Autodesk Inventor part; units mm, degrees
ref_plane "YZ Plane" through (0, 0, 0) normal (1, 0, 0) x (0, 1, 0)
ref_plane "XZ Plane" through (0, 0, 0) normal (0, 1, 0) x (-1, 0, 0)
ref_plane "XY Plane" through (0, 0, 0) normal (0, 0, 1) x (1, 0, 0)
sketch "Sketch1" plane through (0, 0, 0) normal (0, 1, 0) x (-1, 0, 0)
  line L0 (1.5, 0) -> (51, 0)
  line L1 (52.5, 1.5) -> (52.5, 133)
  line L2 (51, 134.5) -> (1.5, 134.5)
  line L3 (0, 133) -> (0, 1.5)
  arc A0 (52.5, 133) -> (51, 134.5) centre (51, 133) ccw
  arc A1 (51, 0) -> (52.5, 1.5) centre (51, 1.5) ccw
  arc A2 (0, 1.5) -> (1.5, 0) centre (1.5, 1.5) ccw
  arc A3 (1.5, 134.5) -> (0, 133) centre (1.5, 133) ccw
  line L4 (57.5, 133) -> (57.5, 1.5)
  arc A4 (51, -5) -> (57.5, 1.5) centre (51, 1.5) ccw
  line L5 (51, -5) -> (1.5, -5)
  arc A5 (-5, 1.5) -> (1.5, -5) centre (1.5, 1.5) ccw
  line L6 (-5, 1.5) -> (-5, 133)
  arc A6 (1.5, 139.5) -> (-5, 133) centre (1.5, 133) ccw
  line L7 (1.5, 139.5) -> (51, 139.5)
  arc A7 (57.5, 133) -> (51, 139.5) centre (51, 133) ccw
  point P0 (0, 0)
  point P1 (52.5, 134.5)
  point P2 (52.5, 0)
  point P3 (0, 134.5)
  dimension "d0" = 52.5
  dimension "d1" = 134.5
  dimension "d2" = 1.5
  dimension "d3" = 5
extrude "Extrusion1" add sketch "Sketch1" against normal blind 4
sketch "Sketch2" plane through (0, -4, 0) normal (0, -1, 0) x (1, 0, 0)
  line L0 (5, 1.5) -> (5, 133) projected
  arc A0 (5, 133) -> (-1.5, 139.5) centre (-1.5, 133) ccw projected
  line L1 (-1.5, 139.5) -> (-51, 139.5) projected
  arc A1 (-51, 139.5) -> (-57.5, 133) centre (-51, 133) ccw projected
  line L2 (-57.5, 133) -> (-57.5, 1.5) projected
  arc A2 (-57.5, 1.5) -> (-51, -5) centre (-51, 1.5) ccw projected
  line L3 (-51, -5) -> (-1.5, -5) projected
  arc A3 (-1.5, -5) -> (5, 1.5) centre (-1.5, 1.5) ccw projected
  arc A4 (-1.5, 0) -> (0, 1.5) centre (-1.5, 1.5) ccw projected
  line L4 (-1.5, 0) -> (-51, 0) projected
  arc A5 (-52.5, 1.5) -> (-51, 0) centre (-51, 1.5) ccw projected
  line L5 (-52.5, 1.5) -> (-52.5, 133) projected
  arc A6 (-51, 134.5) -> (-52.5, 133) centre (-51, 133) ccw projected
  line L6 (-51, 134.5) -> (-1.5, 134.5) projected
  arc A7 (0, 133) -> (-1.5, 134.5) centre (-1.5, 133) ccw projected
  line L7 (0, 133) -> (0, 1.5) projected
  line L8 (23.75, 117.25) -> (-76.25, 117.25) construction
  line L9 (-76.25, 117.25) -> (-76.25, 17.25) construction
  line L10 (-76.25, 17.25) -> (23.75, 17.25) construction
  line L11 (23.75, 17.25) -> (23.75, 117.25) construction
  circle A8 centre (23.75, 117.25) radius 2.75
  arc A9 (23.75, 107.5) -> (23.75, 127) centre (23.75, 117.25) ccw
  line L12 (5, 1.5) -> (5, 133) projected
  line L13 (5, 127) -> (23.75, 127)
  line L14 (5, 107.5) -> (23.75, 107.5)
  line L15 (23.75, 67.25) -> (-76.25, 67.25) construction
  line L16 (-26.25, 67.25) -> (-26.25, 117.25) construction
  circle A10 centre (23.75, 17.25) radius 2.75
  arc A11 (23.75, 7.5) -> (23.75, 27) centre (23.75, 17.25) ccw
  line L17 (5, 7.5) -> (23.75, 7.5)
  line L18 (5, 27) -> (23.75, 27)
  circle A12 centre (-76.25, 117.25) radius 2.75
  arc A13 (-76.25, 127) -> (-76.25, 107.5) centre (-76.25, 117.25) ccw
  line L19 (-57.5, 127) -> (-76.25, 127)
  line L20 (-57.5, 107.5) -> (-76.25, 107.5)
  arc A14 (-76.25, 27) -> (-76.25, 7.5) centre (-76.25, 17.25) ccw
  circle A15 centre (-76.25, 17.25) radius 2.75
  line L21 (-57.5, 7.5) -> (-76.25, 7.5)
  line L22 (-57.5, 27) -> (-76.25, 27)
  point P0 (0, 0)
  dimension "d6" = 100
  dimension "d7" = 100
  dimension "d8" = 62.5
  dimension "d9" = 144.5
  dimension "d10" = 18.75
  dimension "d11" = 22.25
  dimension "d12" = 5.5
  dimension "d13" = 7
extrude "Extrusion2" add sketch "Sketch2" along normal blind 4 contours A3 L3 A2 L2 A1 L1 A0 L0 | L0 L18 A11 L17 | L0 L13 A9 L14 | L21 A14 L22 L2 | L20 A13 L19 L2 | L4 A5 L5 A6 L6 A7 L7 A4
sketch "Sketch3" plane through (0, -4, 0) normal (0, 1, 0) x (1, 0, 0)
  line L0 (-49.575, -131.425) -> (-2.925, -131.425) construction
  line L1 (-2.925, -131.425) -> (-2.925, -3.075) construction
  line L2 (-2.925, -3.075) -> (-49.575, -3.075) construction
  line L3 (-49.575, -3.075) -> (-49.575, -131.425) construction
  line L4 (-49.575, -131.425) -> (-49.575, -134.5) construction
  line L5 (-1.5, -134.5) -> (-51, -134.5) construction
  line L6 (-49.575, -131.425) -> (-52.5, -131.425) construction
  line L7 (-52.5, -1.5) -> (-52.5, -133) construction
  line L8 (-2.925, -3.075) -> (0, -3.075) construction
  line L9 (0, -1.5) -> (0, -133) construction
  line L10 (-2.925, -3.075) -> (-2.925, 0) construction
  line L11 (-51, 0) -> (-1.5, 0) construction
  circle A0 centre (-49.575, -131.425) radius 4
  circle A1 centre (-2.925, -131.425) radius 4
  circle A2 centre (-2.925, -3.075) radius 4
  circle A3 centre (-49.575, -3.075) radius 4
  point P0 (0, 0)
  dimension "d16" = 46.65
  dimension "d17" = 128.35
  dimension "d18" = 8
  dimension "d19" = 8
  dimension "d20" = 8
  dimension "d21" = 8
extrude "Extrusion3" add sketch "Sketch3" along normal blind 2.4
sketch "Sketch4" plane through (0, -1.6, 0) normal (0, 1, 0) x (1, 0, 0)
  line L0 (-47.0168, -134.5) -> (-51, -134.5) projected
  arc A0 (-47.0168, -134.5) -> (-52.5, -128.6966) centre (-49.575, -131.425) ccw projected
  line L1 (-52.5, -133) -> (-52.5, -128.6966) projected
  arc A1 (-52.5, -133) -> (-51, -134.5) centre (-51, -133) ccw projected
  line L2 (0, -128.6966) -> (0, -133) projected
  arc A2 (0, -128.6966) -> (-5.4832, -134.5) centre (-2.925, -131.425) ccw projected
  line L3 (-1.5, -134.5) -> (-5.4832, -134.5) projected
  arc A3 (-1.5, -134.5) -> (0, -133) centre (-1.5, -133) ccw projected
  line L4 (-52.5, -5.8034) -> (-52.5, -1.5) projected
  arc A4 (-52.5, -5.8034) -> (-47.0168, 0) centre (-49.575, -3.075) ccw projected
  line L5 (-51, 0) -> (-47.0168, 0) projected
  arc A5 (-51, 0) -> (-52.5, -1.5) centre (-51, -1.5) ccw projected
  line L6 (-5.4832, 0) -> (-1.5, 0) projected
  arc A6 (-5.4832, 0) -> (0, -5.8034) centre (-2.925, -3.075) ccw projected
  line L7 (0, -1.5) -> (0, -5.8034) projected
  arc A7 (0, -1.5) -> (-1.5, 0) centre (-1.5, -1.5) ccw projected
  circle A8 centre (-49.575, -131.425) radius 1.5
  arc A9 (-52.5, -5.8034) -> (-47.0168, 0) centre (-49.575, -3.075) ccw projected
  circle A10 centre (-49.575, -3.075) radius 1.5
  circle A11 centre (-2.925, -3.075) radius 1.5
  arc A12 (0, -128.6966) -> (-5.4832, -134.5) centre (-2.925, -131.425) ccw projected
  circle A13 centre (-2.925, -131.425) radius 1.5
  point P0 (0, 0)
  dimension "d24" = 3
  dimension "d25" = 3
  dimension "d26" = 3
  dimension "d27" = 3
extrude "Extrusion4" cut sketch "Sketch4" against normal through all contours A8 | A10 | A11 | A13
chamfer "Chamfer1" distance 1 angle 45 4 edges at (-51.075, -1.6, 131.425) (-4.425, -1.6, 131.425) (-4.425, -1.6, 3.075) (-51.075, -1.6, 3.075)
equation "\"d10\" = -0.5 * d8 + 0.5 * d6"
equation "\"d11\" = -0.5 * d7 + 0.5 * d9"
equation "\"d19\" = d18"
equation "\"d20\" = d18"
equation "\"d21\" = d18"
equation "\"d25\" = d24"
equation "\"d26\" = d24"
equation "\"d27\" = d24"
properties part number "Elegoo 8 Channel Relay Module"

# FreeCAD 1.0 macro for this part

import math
import FreeCAD as App
import Part
import Sketcher
from FreeCAD import Vector
Q = App.Units.Quantity


def edges_at(feature, points):
    """Names of the edges that pass closest to the given points."""
    edges = feature.Shape.Edges
    near = lambda p: min(range(len(edges)), key=lambda i: edges[i].distToShape(Part.Vertex(*p))[0])
    return sorted({f"Edge{near(p) + 1}" for p in points})

doc = App.newDocument("Part")
body = doc.addObject("PartDesign::Body", "Body")

# Sketch on XZ plane
sketch1 = body.newObject("Sketcher::SketchObject", "Sketch")
sketch1.AttachmentSupport = (doc.getObject("XZ_Plane"), [""])
sketch1.MapMode = "FlatFace"
sketch1.addGeometry([
    Part.LineSegment(Vector(-57.5, 1.5, 0), Vector(-57.5, 133, 0)),  # 0
    Part.ArcOfCircle(Part.Circle(Vector(-51, 133, 0), Vector(0, 0, 1), 6.5), math.radians(90), math.radians(180)),  # 1
    Part.LineSegment(Vector(-51, 139.5, 0), Vector(-1.5, 139.5, 0)),  # 2
    Part.ArcOfCircle(Part.Circle(Vector(-1.5, 133, 0), Vector(0, 0, 1), 6.5), math.radians(0), math.radians(90)),  # 3
    Part.LineSegment(Vector(5, 133, 0), Vector(5, 1.5, 0)),  # 4
    Part.ArcOfCircle(Part.Circle(Vector(-1.5, 1.5, 0), Vector(0, 0, 1), 6.5), math.radians(-90), math.radians(0)),  # 5
    Part.LineSegment(Vector(-1.5, -5, 0), Vector(-51, -5, 0)),  # 6
    Part.ArcOfCircle(Part.Circle(Vector(-51, 1.5, 0), Vector(0, 0, 1), 6.5), math.radians(180), math.radians(270)),  # 7
    Part.LineSegment(Vector(-51, 0, 0), Vector(-1.5, 0, 0)),  # 8
    Part.ArcOfCircle(Part.Circle(Vector(-1.5, 1.5, 0), Vector(0, 0, 1), 1.5), math.radians(-90), math.radians(0)),  # 9
    Part.LineSegment(Vector(0, 1.5, 0), Vector(0, 133, 0)),  # 10
    Part.ArcOfCircle(Part.Circle(Vector(-1.5, 133, 0), Vector(0, 0, 1), 1.5), math.radians(0), math.radians(90)),  # 11
    Part.LineSegment(Vector(-1.5, 134.5, 0), Vector(-51, 134.5, 0)),  # 12
    Part.ArcOfCircle(Part.Circle(Vector(-51, 133, 0), Vector(0, 0, 1), 1.5), math.radians(90), math.radians(180)),  # 13
    Part.LineSegment(Vector(-52.5, 133, 0), Vector(-52.5, 1.5, 0)),  # 14
    Part.ArcOfCircle(Part.Circle(Vector(-51, 1.5, 0), Vector(0, 0, 1), 1.5), math.radians(180), math.radians(270)),  # 15
], False)
sketch1.addConstraint([
    Sketcher.Constraint("Tangent", 0, 2, 1, 2),
    Sketcher.Constraint("Tangent", 1, 1, 2, 1),
    Sketcher.Constraint("Tangent", 2, 2, 3, 2),
    Sketcher.Constraint("Tangent", 3, 1, 4, 1),
    Sketcher.Constraint("Tangent", 4, 2, 5, 2),
    Sketcher.Constraint("Tangent", 5, 1, 6, 1),
    Sketcher.Constraint("Tangent", 6, 2, 7, 2),
    Sketcher.Constraint("Tangent", 7, 1, 0, 1),
    Sketcher.Constraint("Tangent", 8, 2, 9, 1),
    Sketcher.Constraint("Tangent", 9, 2, 10, 1),
    Sketcher.Constraint("Tangent", 10, 2, 11, 1),
    Sketcher.Constraint("Tangent", 11, 2, 12, 1),
    Sketcher.Constraint("Tangent", 12, 2, 13, 1),
    Sketcher.Constraint("Tangent", 13, 2, 14, 1),
    Sketcher.Constraint("Tangent", 14, 2, 15, 1),
    Sketcher.Constraint("Tangent", 15, 2, 8, 1),
    Sketcher.Constraint("Vertical", 0),
    Sketcher.Constraint("Horizontal", 2),
    Sketcher.Constraint("Vertical", 4),
    Sketcher.Constraint("Horizontal", 6),
    Sketcher.Constraint("Horizontal", 8),
    Sketcher.Constraint("Vertical", 10),
    Sketcher.Constraint("Horizontal", 12),
    Sketcher.Constraint("Vertical", 14),
    Sketcher.Constraint("Coincident", 9, 3, 5, 3),
    Sketcher.Constraint("Coincident", 11, 3, 3, 3),
    Sketcher.Constraint("Coincident", 13, 3, 1, 3),
    Sketcher.Constraint("Equal", 1, 3),
    Sketcher.Constraint("Equal", 3, 5),
    Sketcher.Constraint("Equal", 5, 7),
    Sketcher.Constraint("Equal", 13, 15),
    Sketcher.Constraint("PointOnObject", 8, 2, -1),
    Sketcher.Constraint("PointOnObject", 9, 2, -2),
    Sketcher.Constraint("Radius", 9, Q("1.5 mm")),
    Sketcher.Constraint("DistanceX", -1, 1, 3, 1, Q("5 mm")),
    Sketcher.Constraint("DistanceY", -1, 1, 11, 2, Q("134.5 mm")),
    Sketcher.Constraint("DistanceX", 13, 2, -1, 1, Q("52.5 mm")),
])
pad1 = body.newObject("PartDesign::Pad", "Pad")
pad1.Profile = sketch1
pad1.Length = 4

# Sketch on XZ plane
sketch2 = body.newObject("Sketcher::SketchObject", "Sketch001")
sketch2.AttachmentSupport = (doc.getObject("XZ_Plane"), [""])
sketch2.MapMode = "FlatFace"
sketch2.AttachmentOffset = App.Placement(Vector(0, 0, 4), App.Rotation())
sketch2.addGeometry([
    Part.ArcOfCircle(Part.Circle(Vector(-1.5, 1.5, 0), Vector(0, 0, 1), 6.5), math.radians(-90), math.radians(0)),  # 0
    Part.LineSegment(Vector(5, 1.5, 0), Vector(5, 7.5, 0)),  # 1
    Part.LineSegment(Vector(5, 7.5, 0), Vector(23.8, 7.5, 0)),  # 2
    Part.ArcOfCircle(Part.Circle(Vector(23.8, 17.2, 0), Vector(0, 0, 1), 9.8), math.radians(-90), math.radians(90)),  # 3
    Part.LineSegment(Vector(23.8, 27, 0), Vector(5, 27, 0)),  # 4
    Part.LineSegment(Vector(5, 27, 0), Vector(5, 107.5, 0)),  # 5
    Part.LineSegment(Vector(5, 107.5, 0), Vector(23.8, 107.5, 0)),  # 6
    Part.ArcOfCircle(Part.Circle(Vector(23.8, 117.2, 0), Vector(0, 0, 1), 9.8), math.radians(-90), math.radians(90)),  # 7
    Part.LineSegment(Vector(23.8, 127, 0), Vector(5, 127, 0)),  # 8
    Part.LineSegment(Vector(5, 127, 0), Vector(5, 133, 0)),  # 9
    Part.ArcOfCircle(Part.Circle(Vector(-1.5, 133, 0), Vector(0, 0, 1), 6.5), math.radians(0), math.radians(90)),  # 10
    Part.LineSegment(Vector(-1.5, 139.5, 0), Vector(-51, 139.5, 0)),  # 11
    Part.ArcOfCircle(Part.Circle(Vector(-51, 133, 0), Vector(0, 0, 1), 6.5), math.radians(90), math.radians(180)),  # 12
    Part.LineSegment(Vector(-57.5, 133, 0), Vector(-57.5, 127, 0)),  # 13
    Part.LineSegment(Vector(-57.5, 127, 0), Vector(-76.2, 127, 0)),  # 14
    Part.ArcOfCircle(Part.Circle(Vector(-76.2, 117.2, 0), Vector(0, 0, 1), 9.8), math.radians(90), math.radians(270)),  # 15
    Part.LineSegment(Vector(-76.2, 107.5, 0), Vector(-57.5, 107.5, 0)),  # 16
    Part.LineSegment(Vector(-57.5, 107.5, 0), Vector(-57.5, 27, 0)),  # 17
    Part.LineSegment(Vector(-57.5, 27, 0), Vector(-76.2, 27, 0)),  # 18
    Part.ArcOfCircle(Part.Circle(Vector(-76.2, 17.2, 0), Vector(0, 0, 1), 9.8), math.radians(90), math.radians(270)),  # 19
    Part.LineSegment(Vector(-76.2, 7.5, 0), Vector(-57.5, 7.5, 0)),  # 20
    Part.LineSegment(Vector(-57.5, 7.5, 0), Vector(-57.5, 1.5, 0)),  # 21
    Part.ArcOfCircle(Part.Circle(Vector(-51, 1.5, 0), Vector(0, 0, 1), 6.5), math.radians(180), math.radians(270)),  # 22
    Part.LineSegment(Vector(-51, -5, 0), Vector(-1.5, -5, 0)),  # 23
    Part.Circle(Vector(-76.2, 17.2, 0), Vector(0, 0, 1), 2.8),  # 24
    Part.Circle(Vector(-76.2, 117.2, 0), Vector(0, 0, 1), 2.8),  # 25
    Part.Circle(Vector(23.8, 117.2, 0), Vector(0, 0, 1), 2.8),  # 26
    Part.Circle(Vector(23.8, 17.2, 0), Vector(0, 0, 1), 2.8),  # 27
], False)
sketch2.addConstraint([
    Sketcher.Constraint("Tangent", 0, 2, 1, 1),
    Sketcher.Constraint("Coincident", 1, 2, 2, 1),
    Sketcher.Constraint("Tangent", 2, 2, 3, 1),
    Sketcher.Constraint("Tangent", 3, 2, 4, 1),
    Sketcher.Constraint("Coincident", 4, 2, 5, 1),
    Sketcher.Constraint("Coincident", 5, 2, 6, 1),
    Sketcher.Constraint("Tangent", 6, 2, 7, 1),
    Sketcher.Constraint("Tangent", 7, 2, 8, 1),
    Sketcher.Constraint("Coincident", 8, 2, 9, 1),
    Sketcher.Constraint("Tangent", 9, 2, 10, 1),
    Sketcher.Constraint("Tangent", 10, 2, 11, 1),
    Sketcher.Constraint("Tangent", 11, 2, 12, 1),
    Sketcher.Constraint("Tangent", 12, 2, 13, 1),
    Sketcher.Constraint("Coincident", 13, 2, 14, 1),
    Sketcher.Constraint("Tangent", 14, 2, 15, 1),
    Sketcher.Constraint("Tangent", 15, 2, 16, 1),
    Sketcher.Constraint("Coincident", 16, 2, 17, 1),
    Sketcher.Constraint("Coincident", 17, 2, 18, 1),
    Sketcher.Constraint("Tangent", 18, 2, 19, 1),
    Sketcher.Constraint("Tangent", 19, 2, 20, 1),
    Sketcher.Constraint("Coincident", 20, 2, 21, 1),
    Sketcher.Constraint("Tangent", 21, 2, 22, 1),
    Sketcher.Constraint("Tangent", 22, 2, 23, 1),
    Sketcher.Constraint("Tangent", 23, 2, 0, 1),
    Sketcher.Constraint("Vertical", 1),
    Sketcher.Constraint("Horizontal", 2),
    Sketcher.Constraint("Horizontal", 4),
    Sketcher.Constraint("Vertical", 5),
    Sketcher.Constraint("Horizontal", 6),
    Sketcher.Constraint("Horizontal", 8),
    Sketcher.Constraint("Vertical", 9),
    Sketcher.Constraint("Horizontal", 11),
    Sketcher.Constraint("Vertical", 13),
    Sketcher.Constraint("Horizontal", 14),
    Sketcher.Constraint("Horizontal", 16),
    Sketcher.Constraint("Vertical", 17),
    Sketcher.Constraint("Horizontal", 18),
    Sketcher.Constraint("Horizontal", 20),
    Sketcher.Constraint("Vertical", 21),
    Sketcher.Constraint("Horizontal", 23),
    Sketcher.Constraint("Coincident", 24, 3, 19, 3),
    Sketcher.Constraint("Coincident", 25, 3, 15, 3),
    Sketcher.Constraint("Coincident", 26, 3, 7, 3),
    Sketcher.Constraint("Coincident", 27, 3, 3, 3),
    Sketcher.Constraint("Equal", 3, 7),
    Sketcher.Constraint("Equal", 0, 10),
    Sketcher.Constraint("Equal", 10, 12),
    Sketcher.Constraint("Equal", 7, 15),
    Sketcher.Constraint("Equal", 15, 19),
    Sketcher.Constraint("Equal", 12, 22),
    Sketcher.Constraint("Equal", 24, 25),
    Sketcher.Constraint("Equal", 25, 26),
    Sketcher.Constraint("Equal", 26, 27),
    Sketcher.Constraint("Horizontal", 7, 3, 15, 3),
    Sketcher.Constraint("Horizontal", 3, 3, 19, 3),
    Sketcher.Constraint("Vertical", 3, 3, 7, 3),
    Sketcher.Constraint("Vertical", 0, 3, 10, 3),
    Sketcher.Constraint("Vertical", 15, 3, 19, 3),
    Sketcher.Constraint("Vertical", 12, 3, 22, 3),
    Sketcher.Constraint("Vertical", 1, 2, 4, 2),
    Sketcher.Constraint("Vertical", 13, 2, 16, 2),
    Sketcher.Constraint("Equal", 8, 14),
    Sketcher.Constraint("Equal", 1, 9),
    Sketcher.Constraint("Diameter", 24, Q("5.5 mm")),
    Sketcher.Constraint("DistanceY", 3, 3, 7, 3, Q("100 mm")),
    Sketcher.Constraint("DistanceX", 15, 3, 7, 3, Q("100 mm")),
    Sketcher.Constraint("DistanceX", 2, 1, 2, 2, Q("18.75 mm")),
    Sketcher.Constraint("Radius", 0, Q("6.5 mm")),
    Sketcher.Constraint("DistanceY", 1, 1, 1, 2, Q("6 mm")),
    Sketcher.Constraint("Radius", 3, Q("9.75 mm")),
    Sketcher.Constraint("DistanceY", -1, 1, 10, 3, Q("133 mm")),
    Sketcher.Constraint("DistanceX", 12, 3, -1, 1, Q("51 mm")),
])
pad2 = body.newObject("PartDesign::Pad", "Pad001")
pad2.Profile = sketch2
pad2.Length = 4

# Sketch on XZ plane
sketch3 = body.newObject("Sketcher::SketchObject", "Sketch002")
sketch3.AttachmentSupport = (doc.getObject("XZ_Plane"), [""])
sketch3.MapMode = "FlatFace"
sketch3.AttachmentOffset = App.Placement(Vector(0, 0, 4), App.Rotation())
sketch3.addGeometry([
    Part.Circle(Vector(-49.6, 131.4, 0), Vector(0, 0, 1), 4),
    Part.Circle(Vector(-2.9, 131.4, 0), Vector(0, 0, 1), 4),
    Part.Circle(Vector(-2.9, 3.1, 0), Vector(0, 0, 1), 4),
    Part.Circle(Vector(-49.6, 3.1, 0), Vector(0, 0, 1), 4),
], False)
sketch3.addConstraint([
    Sketcher.Constraint("Equal", 0, 1),
    Sketcher.Constraint("Equal", 1, 2),
    Sketcher.Constraint("Equal", 2, 3),
    Sketcher.Constraint("Horizontal", 0, 3, 1, 3),
    Sketcher.Constraint("Horizontal", 2, 3, 3, 3),
    Sketcher.Constraint("Vertical", 1, 3, 2, 3),
    Sketcher.Constraint("Vertical", 0, 3, 3, 3),
    Sketcher.Constraint("Diameter", 0, Q("8 mm")),
    Sketcher.Constraint("DistanceX", 0, 3, 1, 3, Q("46.65 mm")),
    Sketcher.Constraint("DistanceY", 2, 3, 1, 3, Q("128.35 mm")),
    Sketcher.Constraint("DistanceX", 0, 3, -1, 1, Q("49.575 mm")),
    Sketcher.Constraint("DistanceY", -1, 1, 0, 3, Q("131.425 mm")),
])
pad3 = body.newObject("PartDesign::Pad", "Pad002")
pad3.Profile = sketch3
pad3.Length = 2.4
pad3.Reversed = True

# Sketch on XZ plane
sketch4 = body.newObject("Sketcher::SketchObject", "Sketch003")
sketch4.AttachmentSupport = (doc.getObject("XZ_Plane"), [""])
sketch4.MapMode = "FlatFace"
sketch4.AttachmentOffset = App.Placement(Vector(0, 0, 1.6), App.Rotation())
sketch4.addGeometry([
    Part.Circle(Vector(-49.6, 131.4, 0), Vector(0, 0, 1), 1.5),
    Part.Circle(Vector(-49.6, 3.1, 0), Vector(0, 0, 1), 1.5),
    Part.Circle(Vector(-2.9, 3.1, 0), Vector(0, 0, 1), 1.5),
    Part.Circle(Vector(-2.9, 131.4, 0), Vector(0, 0, 1), 1.5),
], False)
sketch4.addConstraint([
    Sketcher.Constraint("Equal", 0, 1),
    Sketcher.Constraint("Equal", 1, 2),
    Sketcher.Constraint("Equal", 2, 3),
    Sketcher.Constraint("Horizontal", 1, 3, 2, 3),
    Sketcher.Constraint("Horizontal", 0, 3, 3, 3),
    Sketcher.Constraint("Vertical", 0, 3, 1, 3),
    Sketcher.Constraint("Vertical", 2, 3, 3, 3),
    Sketcher.Constraint("Diameter", 0, Q("3 mm")),
    Sketcher.Constraint("DistanceY", 1, 3, 0, 3, Q("128.35 mm")),
    Sketcher.Constraint("DistanceX", 1, 3, 2, 3, Q("46.65 mm")),
    Sketcher.Constraint("DistanceX", 0, 3, -1, 1, Q("49.575 mm")),
    Sketcher.Constraint("DistanceY", -1, 1, 0, 3, Q("131.425 mm")),
])
pocket1 = body.newObject("PartDesign::Pocket", "Pocket")
pocket1.Profile = sketch4
pocket1.Type = "ThroughAll"
pocket1.Reversed = True
doc.recompute()

chamfer = body.newObject("PartDesign::Chamfer", "Chamfer")
chamfer.Base = (pocket1, edges_at(pocket1, [
    (-51.075, -1.6, 131.425),
    (-4.425, -1.6, 131.425),
    (-4.425, -1.6, 3.075),
    (-51.075, -1.6, 3.075),
]))
chamfer.Size = 1

doc.recompute()
